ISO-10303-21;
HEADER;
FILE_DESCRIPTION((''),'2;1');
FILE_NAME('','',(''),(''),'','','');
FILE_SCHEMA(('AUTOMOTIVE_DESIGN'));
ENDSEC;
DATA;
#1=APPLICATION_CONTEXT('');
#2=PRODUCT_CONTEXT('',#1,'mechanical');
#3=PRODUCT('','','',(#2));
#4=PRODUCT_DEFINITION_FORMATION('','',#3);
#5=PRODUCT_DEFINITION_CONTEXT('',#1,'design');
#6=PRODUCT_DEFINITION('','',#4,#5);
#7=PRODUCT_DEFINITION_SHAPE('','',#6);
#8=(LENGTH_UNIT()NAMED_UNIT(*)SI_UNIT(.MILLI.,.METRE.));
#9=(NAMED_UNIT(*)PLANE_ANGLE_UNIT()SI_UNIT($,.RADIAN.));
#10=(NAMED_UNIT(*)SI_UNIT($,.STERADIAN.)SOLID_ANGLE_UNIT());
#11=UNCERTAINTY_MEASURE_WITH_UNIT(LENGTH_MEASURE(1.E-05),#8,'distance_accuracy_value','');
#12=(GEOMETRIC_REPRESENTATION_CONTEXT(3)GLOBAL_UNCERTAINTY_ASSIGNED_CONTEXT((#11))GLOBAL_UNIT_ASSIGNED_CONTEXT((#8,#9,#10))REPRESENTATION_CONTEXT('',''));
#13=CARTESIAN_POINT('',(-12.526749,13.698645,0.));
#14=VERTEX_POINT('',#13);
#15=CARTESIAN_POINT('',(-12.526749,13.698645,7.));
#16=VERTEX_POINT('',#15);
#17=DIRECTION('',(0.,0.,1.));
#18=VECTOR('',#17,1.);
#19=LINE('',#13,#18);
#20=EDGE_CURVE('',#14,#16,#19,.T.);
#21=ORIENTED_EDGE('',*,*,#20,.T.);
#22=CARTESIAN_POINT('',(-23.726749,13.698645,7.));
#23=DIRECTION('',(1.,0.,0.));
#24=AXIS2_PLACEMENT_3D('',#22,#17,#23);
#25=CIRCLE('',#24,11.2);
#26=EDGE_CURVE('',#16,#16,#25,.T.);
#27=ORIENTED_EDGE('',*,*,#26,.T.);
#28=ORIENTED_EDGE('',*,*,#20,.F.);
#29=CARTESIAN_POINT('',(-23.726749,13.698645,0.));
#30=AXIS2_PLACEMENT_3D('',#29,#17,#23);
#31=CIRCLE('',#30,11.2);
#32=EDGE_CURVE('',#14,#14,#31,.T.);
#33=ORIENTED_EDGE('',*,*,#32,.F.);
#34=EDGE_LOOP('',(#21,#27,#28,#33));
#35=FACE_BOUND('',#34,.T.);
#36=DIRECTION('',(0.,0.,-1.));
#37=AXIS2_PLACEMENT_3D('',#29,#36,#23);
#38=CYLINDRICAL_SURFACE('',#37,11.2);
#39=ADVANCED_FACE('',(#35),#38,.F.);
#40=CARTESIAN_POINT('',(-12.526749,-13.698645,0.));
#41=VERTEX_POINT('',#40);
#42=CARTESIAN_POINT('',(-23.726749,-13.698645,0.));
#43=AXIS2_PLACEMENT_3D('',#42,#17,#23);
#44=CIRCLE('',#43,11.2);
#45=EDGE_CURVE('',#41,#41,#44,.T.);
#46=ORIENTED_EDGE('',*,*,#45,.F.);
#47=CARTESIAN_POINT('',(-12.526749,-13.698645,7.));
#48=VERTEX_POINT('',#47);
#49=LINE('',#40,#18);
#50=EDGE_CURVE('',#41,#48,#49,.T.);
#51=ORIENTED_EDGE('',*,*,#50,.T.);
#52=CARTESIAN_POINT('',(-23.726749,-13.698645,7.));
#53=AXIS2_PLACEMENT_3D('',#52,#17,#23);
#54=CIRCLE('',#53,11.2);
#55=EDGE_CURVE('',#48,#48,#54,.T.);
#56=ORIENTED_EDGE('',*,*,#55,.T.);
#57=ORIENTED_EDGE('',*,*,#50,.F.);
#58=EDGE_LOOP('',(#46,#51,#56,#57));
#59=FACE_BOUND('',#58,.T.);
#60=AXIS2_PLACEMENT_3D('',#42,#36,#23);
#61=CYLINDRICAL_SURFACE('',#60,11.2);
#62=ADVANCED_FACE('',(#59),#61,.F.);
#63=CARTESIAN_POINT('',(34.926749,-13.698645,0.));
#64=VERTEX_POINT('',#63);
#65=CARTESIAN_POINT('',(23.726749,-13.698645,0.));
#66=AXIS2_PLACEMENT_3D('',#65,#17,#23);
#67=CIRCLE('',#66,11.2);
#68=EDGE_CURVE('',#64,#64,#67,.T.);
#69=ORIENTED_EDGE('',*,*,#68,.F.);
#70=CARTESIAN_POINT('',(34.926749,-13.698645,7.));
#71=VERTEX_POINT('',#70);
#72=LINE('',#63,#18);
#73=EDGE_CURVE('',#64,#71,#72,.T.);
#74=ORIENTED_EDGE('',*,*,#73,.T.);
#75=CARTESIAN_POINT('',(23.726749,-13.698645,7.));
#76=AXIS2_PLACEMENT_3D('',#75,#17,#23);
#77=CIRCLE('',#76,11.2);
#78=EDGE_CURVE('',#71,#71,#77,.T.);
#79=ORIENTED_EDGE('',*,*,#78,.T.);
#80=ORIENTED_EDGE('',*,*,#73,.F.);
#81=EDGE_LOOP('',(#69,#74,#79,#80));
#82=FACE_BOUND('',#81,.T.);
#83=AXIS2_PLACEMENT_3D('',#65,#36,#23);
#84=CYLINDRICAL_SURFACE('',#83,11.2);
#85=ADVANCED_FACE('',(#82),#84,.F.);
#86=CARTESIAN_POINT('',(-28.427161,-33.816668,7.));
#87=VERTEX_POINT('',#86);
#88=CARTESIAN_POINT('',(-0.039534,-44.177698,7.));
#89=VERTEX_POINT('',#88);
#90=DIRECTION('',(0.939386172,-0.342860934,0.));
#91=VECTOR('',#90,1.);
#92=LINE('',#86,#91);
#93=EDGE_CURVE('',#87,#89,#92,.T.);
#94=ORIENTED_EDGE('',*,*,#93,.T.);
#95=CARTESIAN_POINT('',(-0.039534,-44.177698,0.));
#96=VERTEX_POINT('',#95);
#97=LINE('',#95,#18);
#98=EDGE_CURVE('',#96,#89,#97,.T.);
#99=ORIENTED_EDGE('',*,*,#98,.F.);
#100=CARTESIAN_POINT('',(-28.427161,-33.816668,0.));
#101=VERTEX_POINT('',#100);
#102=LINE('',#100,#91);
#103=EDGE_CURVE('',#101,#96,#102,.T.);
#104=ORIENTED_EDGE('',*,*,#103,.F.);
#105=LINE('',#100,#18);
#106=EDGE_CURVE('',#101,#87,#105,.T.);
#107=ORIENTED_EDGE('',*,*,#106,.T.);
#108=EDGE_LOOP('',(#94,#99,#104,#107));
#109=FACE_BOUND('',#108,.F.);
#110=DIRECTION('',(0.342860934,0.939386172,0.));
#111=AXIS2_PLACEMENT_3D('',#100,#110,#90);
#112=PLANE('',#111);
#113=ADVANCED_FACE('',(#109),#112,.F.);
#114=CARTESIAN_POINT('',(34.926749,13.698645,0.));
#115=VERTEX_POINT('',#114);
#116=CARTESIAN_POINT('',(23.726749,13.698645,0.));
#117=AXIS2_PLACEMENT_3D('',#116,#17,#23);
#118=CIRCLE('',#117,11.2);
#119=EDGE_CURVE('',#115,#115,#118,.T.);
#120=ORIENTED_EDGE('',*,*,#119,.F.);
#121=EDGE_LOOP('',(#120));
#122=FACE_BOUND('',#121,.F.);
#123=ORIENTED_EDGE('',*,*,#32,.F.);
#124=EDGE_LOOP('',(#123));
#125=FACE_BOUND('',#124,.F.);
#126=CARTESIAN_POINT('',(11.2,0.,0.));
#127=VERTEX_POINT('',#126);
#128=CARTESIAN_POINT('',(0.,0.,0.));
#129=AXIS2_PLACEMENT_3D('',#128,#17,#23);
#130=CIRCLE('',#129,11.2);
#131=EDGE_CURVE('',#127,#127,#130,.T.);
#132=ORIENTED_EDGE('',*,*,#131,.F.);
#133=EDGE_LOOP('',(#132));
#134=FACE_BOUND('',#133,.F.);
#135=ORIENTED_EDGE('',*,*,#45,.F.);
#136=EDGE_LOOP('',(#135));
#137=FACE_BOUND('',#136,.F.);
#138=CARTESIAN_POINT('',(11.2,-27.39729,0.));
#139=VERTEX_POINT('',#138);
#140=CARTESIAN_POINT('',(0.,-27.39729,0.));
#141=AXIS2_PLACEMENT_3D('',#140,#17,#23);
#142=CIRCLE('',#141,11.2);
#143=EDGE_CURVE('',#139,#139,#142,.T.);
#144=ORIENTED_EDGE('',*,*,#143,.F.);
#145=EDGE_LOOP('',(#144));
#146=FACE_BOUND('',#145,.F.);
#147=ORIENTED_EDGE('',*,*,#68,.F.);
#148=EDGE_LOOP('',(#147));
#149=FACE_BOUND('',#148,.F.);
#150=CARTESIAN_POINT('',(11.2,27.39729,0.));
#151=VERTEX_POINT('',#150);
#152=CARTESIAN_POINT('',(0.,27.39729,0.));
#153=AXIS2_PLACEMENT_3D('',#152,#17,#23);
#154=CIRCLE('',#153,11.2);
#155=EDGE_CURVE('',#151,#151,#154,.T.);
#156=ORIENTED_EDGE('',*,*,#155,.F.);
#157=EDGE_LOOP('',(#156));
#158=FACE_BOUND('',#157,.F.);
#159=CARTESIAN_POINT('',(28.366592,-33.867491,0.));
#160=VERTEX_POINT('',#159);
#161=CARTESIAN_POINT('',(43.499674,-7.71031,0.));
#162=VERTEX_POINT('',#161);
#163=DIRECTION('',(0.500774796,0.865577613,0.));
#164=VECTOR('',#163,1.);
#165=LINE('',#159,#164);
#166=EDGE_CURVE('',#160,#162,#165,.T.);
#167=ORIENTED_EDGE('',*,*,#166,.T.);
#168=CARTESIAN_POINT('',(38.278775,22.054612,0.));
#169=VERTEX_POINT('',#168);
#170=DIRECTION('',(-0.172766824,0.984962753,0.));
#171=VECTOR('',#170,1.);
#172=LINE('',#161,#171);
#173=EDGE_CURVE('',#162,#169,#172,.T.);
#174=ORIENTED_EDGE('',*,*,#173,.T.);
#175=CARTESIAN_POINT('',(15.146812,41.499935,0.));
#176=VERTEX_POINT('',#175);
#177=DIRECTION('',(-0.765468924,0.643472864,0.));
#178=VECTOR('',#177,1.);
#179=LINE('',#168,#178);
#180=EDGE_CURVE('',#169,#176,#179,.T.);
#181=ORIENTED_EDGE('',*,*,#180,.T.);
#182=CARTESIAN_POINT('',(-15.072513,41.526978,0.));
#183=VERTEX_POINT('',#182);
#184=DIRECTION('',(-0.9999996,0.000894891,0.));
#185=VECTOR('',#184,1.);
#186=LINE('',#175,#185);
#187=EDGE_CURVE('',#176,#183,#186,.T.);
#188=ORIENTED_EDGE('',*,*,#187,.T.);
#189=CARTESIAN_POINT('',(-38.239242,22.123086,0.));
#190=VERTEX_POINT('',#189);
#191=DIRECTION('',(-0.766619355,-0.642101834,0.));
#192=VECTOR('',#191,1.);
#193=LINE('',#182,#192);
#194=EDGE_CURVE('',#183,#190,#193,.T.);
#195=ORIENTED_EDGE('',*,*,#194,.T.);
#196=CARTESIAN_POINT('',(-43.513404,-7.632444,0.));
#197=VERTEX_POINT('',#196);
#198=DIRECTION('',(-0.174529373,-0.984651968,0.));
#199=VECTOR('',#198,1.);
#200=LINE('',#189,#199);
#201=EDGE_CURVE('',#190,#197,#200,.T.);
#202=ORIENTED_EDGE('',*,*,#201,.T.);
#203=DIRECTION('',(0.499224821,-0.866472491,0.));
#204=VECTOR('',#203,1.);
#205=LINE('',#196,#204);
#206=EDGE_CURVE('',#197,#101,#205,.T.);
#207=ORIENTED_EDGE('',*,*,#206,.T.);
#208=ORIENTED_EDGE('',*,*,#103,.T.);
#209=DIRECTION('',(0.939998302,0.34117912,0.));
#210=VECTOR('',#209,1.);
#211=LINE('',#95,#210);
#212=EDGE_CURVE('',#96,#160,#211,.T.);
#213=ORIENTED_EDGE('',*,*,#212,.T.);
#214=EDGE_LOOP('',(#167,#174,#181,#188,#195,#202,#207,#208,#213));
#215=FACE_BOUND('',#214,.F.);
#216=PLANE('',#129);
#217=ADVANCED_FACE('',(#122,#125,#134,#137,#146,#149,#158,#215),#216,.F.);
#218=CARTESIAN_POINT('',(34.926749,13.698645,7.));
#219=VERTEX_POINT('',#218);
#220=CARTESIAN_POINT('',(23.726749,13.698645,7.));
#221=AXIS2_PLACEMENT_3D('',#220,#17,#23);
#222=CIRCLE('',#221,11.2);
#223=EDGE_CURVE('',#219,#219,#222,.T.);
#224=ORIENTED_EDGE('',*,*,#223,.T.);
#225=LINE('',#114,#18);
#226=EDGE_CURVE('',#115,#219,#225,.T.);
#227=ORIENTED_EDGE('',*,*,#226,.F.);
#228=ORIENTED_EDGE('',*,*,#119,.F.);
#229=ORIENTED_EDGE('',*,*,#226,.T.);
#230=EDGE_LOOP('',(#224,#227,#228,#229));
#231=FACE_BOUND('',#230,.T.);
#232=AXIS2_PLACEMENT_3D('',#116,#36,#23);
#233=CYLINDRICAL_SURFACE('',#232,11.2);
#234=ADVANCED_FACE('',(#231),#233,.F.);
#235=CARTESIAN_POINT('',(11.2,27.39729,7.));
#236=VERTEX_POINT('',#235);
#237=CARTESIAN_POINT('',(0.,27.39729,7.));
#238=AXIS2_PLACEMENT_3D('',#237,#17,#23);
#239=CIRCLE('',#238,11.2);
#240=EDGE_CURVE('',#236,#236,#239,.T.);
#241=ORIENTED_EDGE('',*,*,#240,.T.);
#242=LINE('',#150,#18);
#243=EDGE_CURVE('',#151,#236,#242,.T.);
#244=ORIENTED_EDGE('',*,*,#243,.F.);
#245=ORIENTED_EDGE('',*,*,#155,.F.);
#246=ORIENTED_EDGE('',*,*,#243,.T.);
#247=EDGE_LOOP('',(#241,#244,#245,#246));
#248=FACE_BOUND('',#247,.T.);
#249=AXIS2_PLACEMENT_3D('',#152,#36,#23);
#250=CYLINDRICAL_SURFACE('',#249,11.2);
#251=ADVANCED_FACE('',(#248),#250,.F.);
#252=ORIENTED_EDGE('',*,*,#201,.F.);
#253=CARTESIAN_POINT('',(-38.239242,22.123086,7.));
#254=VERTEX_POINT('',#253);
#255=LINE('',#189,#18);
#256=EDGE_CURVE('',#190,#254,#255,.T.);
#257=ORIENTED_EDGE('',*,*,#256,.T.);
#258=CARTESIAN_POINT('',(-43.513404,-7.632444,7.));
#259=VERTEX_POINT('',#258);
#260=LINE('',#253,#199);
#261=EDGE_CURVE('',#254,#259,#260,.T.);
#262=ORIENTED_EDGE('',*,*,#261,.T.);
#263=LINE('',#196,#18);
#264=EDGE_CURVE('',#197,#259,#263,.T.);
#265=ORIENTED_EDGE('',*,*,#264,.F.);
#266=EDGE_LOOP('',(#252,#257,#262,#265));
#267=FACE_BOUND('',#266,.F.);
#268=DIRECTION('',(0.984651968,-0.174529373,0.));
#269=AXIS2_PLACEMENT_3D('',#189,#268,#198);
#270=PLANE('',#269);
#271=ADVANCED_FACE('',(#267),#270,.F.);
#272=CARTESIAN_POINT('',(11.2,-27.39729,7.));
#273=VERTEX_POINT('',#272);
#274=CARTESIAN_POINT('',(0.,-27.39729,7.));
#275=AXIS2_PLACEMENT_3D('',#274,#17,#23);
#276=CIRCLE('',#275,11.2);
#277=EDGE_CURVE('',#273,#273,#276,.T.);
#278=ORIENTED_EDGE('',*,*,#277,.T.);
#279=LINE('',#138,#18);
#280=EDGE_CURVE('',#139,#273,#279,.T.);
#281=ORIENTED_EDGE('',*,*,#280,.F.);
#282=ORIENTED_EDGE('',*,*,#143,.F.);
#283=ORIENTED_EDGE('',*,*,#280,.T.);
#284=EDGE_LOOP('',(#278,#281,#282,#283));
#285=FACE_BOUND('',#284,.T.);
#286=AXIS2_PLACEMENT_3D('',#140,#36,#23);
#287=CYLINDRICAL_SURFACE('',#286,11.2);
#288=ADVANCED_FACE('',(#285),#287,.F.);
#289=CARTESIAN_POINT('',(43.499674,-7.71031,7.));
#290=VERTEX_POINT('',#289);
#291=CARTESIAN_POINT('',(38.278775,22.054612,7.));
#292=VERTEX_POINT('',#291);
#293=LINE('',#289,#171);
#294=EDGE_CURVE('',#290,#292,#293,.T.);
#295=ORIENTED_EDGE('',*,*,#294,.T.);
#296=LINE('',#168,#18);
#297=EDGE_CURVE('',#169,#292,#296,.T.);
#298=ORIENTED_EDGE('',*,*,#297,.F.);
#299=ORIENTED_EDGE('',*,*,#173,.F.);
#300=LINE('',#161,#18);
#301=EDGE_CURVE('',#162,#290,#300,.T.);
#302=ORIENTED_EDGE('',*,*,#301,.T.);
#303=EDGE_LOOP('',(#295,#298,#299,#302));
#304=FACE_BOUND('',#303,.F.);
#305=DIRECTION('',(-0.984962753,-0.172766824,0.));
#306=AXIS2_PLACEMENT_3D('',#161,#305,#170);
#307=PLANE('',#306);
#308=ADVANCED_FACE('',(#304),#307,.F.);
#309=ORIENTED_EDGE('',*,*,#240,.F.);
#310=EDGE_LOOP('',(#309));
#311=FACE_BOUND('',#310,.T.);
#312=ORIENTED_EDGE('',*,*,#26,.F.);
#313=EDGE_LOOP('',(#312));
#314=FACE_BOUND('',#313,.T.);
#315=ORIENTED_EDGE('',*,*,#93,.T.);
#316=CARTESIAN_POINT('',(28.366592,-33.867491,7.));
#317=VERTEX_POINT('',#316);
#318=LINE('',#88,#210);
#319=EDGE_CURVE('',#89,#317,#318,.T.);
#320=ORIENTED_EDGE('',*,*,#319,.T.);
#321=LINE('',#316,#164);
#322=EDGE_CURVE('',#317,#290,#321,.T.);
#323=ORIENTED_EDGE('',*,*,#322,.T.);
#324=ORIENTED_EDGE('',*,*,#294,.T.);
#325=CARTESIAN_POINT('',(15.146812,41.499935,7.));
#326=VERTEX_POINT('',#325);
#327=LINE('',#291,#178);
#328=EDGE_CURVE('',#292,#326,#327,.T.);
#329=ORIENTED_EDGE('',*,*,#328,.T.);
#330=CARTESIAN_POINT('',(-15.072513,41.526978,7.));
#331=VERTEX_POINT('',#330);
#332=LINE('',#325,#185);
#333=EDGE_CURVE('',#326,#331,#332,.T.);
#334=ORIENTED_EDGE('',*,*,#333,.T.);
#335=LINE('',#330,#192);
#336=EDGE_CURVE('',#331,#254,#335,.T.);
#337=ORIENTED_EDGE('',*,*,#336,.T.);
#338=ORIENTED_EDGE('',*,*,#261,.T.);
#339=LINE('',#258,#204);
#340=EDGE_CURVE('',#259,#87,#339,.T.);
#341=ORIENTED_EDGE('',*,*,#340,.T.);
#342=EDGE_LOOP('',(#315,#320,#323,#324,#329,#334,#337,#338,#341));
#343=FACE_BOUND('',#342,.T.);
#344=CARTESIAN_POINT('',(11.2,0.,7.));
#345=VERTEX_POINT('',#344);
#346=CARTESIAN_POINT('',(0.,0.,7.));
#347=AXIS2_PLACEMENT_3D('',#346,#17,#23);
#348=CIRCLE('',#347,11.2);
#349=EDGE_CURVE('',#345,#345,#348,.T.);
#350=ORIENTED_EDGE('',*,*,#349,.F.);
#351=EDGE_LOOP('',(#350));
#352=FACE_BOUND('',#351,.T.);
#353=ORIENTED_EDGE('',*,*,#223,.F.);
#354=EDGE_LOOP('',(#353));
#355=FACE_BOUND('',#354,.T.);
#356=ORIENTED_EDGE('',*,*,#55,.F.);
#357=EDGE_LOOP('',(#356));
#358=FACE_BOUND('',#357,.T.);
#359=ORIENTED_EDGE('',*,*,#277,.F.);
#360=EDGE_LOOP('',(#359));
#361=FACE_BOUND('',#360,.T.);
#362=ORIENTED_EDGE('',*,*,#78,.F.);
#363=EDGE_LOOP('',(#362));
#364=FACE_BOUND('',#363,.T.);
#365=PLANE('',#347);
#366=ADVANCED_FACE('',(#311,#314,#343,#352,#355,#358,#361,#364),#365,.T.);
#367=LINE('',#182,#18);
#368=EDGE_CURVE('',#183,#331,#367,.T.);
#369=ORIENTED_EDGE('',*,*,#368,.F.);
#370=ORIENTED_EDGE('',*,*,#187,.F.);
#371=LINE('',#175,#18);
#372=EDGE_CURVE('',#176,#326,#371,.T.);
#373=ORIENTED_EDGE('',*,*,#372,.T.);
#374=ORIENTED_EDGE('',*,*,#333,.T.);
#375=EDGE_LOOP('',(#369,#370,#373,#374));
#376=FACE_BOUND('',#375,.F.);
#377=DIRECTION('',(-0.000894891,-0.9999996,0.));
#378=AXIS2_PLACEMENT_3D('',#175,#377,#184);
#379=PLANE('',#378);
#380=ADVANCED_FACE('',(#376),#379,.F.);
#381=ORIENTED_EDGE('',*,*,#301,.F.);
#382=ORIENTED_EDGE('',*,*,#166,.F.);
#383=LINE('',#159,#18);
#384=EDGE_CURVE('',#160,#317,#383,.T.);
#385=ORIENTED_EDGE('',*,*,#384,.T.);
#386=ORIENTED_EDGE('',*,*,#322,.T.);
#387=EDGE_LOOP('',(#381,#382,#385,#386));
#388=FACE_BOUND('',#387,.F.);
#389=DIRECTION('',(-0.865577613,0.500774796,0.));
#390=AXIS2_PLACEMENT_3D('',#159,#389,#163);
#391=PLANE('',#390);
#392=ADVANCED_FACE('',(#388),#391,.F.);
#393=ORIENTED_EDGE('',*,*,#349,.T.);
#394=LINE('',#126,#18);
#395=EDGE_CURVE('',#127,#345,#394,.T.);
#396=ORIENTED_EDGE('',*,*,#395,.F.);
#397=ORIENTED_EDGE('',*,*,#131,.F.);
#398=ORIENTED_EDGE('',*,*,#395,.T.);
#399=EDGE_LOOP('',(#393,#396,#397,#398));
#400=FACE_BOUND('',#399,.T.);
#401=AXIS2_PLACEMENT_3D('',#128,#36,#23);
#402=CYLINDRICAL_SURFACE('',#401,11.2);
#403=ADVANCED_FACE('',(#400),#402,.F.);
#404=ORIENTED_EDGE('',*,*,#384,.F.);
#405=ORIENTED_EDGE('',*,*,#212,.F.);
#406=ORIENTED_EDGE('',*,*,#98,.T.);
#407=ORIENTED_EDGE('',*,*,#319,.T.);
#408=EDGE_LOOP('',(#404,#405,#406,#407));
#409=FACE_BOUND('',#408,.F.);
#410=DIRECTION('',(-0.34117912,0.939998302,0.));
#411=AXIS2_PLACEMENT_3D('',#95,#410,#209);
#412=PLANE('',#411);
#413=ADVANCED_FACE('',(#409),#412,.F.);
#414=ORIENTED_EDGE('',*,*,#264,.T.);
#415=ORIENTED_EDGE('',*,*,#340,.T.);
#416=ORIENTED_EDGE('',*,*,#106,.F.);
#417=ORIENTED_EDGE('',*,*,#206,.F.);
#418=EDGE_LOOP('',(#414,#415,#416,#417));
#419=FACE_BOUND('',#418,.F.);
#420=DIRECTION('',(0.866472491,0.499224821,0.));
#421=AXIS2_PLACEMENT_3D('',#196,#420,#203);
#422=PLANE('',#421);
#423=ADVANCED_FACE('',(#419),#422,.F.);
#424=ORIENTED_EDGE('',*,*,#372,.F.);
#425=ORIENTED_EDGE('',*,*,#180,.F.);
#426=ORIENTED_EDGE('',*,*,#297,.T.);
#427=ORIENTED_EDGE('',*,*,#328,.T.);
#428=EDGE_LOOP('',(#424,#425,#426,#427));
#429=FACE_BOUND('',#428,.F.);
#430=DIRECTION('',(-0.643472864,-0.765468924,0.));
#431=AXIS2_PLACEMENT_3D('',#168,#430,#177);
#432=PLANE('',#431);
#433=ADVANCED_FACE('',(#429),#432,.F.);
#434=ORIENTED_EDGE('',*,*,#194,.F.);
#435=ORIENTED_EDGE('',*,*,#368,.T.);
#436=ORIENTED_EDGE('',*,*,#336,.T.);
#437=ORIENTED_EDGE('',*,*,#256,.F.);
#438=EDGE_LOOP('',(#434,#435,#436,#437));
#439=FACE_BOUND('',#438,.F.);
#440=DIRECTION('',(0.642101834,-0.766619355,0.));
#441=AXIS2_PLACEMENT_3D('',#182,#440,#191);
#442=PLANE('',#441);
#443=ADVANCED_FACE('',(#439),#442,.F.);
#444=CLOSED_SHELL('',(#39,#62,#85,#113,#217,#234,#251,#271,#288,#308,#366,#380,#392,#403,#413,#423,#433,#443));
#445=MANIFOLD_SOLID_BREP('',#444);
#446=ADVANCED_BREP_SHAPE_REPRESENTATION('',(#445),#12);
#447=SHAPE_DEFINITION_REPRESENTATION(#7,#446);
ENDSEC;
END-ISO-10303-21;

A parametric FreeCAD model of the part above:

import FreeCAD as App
import Part
import Sketcher


def add_polygon(sketch, points):
    """Adds a closed chain of lines whose ends are joined by coincident constraints."""
    first, n = sketch.GeometryCount, len(points)
    for a, b in zip(points, points[1:] + points[:1]):
        sketch.addGeometry(Part.LineSegment(App.Vector(*a, 0), App.Vector(*b, 0)), False)
    for i in range(n):
        sketch.addConstraint(Sketcher.Constraint("Coincident", first + i, 2, first + (i + 1) % n, 1))

doc = App.newDocument("Part")
params = doc.addObject("Spreadsheet::Sheet", "Params")
for row, (alias, value) in enumerate([
    ("sketch1_diameter", "22.4 mm"),
    ("pad1_length", "7 mm"),
], start=1):
    params.set(f"A{row}", alias)
    params.set(f"B{row}", "=" + value)
    params.setAlias(f"B{row}", alias)

body = doc.addObject("PartDesign::Body", "Body")

sketch1 = body.newObject("Sketcher::SketchObject", "Sketch")
sketch1.AttachmentSupport = (doc.getObject("XY_Plane"), [""])
sketch1.MapMode = "FlatFace"
add_polygon(sketch1, [(28, -34), (43, -8), (38, 22), (15, 41), (-15, 42), (-38, 22), (-44, -8), (-28, -34), (0, -44)])
sketch1.addGeometry(Part.Circle(App.Vector(-24, -14, 0), App.Vector(0, 0, 1), 11), False)
sketch1.addGeometry(Part.Circle(App.Vector(0, -27, 0), App.Vector(0, 0, 1), 11), False)
sketch1.addGeometry(Part.Circle(App.Vector(0, 0, 0), App.Vector(0, 0, 1), 11), False)
sketch1.addGeometry(Part.Circle(App.Vector(24, -14, 0), App.Vector(0, 0, 1), 11), False)
sketch1.addGeometry(Part.Circle(App.Vector(-24, 14, 0), App.Vector(0, 0, 1), 11), False)
sketch1.addGeometry(Part.Circle(App.Vector(24, 14, 0), App.Vector(0, 0, 1), 11), False)
sketch1.addGeometry(Part.Circle(App.Vector(0, 27, 0), App.Vector(0, 0, 1), 11), False)
sketch1.addConstraint([
    Sketcher.Constraint("Coincident", 11, 3, -1, 1),
    Sketcher.Constraint("Equal", 9, 10),
    Sketcher.Constraint("Equal", 10, 11),
    Sketcher.Constraint("Equal", 11, 12),
    Sketcher.Constraint("Equal", 12, 13),
    Sketcher.Constraint("Equal", 13, 14),
    Sketcher.Constraint("Equal", 14, 15),
    Sketcher.Constraint("Symmetric", 12, 3, 13, 3, -1, 1),
    Sketcher.Constraint("Symmetric", 9, 3, 14, 3, -1, 1),
    Sketcher.Constraint("Symmetric", 10, 3, 15, 3, -1, 1),
    Sketcher.Constraint("Symmetric", 9, 3, 12, 3, -2),
    Sketcher.Constraint("PointOnObject", 10, 3, -2),
    Sketcher.Constraint("Equal", 0, 1),
    Sketcher.Constraint("Equal", 1, 2),
    Sketcher.Constraint("Equal", 2, 3),
    Sketcher.Constraint("Equal", 3, 4),
    Sketcher.Constraint("Equal", 4, 5),
    Sketcher.Constraint("Equal", 5, 6),
    Sketcher.Constraint("Equal", 6, 7),
    Sketcher.Constraint("Equal", 7, 8),
    Sketcher.Constraint("Diameter", 9, 22.4),
    Sketcher.Constraint("DistanceX", 9, 3, 12, 3, 47.453498),
    Sketcher.Constraint("DistanceY", 0, 2, 15, 3, 35.1076),
    Sketcher.Constraint("DistanceX", 1, 2, 0, 2, 5.220899),
    Sketcher.Constraint("DistanceY", 9, 3, 5, 2, 6.066201),
    Sketcher.Constraint("DistanceY", 8, 2, 10, 3, 6.470201),
    Sketcher.Constraint("DistanceY", 10, 3, -1, 1, 27.39729),
    Sketcher.Constraint("DistanceY", -1, 1, 1, 2, 22.054612),
    Sketcher.Constraint("DistanceX", 4, 2, -1, 1, 38.239242),
    Sketcher.Constraint("DistanceX", 6, 2, -1, 1, 28.427161),
    Sketcher.Constraint("DistanceY", 9, 3, 13, 3, 27.39729),
    Sketcher.Constraint("DistanceY", 14, 3, 2, 2, 27.80129),
    Sketcher.Constraint("DistanceX", 13, 3, 2, 2, 38.873561),
    Sketcher.Constraint("DistanceY", 13, 3, 4, 2, 8.424441),
])
sketch1.setExpression("Constraints[29]", "Params.sketch1_diameter")
pad1 = body.newObject("PartDesign::Pad", "Pad")
pad1.Profile = sketch1
pad1.setExpression("Length", "Params.pad1_length")

doc.recompute()
